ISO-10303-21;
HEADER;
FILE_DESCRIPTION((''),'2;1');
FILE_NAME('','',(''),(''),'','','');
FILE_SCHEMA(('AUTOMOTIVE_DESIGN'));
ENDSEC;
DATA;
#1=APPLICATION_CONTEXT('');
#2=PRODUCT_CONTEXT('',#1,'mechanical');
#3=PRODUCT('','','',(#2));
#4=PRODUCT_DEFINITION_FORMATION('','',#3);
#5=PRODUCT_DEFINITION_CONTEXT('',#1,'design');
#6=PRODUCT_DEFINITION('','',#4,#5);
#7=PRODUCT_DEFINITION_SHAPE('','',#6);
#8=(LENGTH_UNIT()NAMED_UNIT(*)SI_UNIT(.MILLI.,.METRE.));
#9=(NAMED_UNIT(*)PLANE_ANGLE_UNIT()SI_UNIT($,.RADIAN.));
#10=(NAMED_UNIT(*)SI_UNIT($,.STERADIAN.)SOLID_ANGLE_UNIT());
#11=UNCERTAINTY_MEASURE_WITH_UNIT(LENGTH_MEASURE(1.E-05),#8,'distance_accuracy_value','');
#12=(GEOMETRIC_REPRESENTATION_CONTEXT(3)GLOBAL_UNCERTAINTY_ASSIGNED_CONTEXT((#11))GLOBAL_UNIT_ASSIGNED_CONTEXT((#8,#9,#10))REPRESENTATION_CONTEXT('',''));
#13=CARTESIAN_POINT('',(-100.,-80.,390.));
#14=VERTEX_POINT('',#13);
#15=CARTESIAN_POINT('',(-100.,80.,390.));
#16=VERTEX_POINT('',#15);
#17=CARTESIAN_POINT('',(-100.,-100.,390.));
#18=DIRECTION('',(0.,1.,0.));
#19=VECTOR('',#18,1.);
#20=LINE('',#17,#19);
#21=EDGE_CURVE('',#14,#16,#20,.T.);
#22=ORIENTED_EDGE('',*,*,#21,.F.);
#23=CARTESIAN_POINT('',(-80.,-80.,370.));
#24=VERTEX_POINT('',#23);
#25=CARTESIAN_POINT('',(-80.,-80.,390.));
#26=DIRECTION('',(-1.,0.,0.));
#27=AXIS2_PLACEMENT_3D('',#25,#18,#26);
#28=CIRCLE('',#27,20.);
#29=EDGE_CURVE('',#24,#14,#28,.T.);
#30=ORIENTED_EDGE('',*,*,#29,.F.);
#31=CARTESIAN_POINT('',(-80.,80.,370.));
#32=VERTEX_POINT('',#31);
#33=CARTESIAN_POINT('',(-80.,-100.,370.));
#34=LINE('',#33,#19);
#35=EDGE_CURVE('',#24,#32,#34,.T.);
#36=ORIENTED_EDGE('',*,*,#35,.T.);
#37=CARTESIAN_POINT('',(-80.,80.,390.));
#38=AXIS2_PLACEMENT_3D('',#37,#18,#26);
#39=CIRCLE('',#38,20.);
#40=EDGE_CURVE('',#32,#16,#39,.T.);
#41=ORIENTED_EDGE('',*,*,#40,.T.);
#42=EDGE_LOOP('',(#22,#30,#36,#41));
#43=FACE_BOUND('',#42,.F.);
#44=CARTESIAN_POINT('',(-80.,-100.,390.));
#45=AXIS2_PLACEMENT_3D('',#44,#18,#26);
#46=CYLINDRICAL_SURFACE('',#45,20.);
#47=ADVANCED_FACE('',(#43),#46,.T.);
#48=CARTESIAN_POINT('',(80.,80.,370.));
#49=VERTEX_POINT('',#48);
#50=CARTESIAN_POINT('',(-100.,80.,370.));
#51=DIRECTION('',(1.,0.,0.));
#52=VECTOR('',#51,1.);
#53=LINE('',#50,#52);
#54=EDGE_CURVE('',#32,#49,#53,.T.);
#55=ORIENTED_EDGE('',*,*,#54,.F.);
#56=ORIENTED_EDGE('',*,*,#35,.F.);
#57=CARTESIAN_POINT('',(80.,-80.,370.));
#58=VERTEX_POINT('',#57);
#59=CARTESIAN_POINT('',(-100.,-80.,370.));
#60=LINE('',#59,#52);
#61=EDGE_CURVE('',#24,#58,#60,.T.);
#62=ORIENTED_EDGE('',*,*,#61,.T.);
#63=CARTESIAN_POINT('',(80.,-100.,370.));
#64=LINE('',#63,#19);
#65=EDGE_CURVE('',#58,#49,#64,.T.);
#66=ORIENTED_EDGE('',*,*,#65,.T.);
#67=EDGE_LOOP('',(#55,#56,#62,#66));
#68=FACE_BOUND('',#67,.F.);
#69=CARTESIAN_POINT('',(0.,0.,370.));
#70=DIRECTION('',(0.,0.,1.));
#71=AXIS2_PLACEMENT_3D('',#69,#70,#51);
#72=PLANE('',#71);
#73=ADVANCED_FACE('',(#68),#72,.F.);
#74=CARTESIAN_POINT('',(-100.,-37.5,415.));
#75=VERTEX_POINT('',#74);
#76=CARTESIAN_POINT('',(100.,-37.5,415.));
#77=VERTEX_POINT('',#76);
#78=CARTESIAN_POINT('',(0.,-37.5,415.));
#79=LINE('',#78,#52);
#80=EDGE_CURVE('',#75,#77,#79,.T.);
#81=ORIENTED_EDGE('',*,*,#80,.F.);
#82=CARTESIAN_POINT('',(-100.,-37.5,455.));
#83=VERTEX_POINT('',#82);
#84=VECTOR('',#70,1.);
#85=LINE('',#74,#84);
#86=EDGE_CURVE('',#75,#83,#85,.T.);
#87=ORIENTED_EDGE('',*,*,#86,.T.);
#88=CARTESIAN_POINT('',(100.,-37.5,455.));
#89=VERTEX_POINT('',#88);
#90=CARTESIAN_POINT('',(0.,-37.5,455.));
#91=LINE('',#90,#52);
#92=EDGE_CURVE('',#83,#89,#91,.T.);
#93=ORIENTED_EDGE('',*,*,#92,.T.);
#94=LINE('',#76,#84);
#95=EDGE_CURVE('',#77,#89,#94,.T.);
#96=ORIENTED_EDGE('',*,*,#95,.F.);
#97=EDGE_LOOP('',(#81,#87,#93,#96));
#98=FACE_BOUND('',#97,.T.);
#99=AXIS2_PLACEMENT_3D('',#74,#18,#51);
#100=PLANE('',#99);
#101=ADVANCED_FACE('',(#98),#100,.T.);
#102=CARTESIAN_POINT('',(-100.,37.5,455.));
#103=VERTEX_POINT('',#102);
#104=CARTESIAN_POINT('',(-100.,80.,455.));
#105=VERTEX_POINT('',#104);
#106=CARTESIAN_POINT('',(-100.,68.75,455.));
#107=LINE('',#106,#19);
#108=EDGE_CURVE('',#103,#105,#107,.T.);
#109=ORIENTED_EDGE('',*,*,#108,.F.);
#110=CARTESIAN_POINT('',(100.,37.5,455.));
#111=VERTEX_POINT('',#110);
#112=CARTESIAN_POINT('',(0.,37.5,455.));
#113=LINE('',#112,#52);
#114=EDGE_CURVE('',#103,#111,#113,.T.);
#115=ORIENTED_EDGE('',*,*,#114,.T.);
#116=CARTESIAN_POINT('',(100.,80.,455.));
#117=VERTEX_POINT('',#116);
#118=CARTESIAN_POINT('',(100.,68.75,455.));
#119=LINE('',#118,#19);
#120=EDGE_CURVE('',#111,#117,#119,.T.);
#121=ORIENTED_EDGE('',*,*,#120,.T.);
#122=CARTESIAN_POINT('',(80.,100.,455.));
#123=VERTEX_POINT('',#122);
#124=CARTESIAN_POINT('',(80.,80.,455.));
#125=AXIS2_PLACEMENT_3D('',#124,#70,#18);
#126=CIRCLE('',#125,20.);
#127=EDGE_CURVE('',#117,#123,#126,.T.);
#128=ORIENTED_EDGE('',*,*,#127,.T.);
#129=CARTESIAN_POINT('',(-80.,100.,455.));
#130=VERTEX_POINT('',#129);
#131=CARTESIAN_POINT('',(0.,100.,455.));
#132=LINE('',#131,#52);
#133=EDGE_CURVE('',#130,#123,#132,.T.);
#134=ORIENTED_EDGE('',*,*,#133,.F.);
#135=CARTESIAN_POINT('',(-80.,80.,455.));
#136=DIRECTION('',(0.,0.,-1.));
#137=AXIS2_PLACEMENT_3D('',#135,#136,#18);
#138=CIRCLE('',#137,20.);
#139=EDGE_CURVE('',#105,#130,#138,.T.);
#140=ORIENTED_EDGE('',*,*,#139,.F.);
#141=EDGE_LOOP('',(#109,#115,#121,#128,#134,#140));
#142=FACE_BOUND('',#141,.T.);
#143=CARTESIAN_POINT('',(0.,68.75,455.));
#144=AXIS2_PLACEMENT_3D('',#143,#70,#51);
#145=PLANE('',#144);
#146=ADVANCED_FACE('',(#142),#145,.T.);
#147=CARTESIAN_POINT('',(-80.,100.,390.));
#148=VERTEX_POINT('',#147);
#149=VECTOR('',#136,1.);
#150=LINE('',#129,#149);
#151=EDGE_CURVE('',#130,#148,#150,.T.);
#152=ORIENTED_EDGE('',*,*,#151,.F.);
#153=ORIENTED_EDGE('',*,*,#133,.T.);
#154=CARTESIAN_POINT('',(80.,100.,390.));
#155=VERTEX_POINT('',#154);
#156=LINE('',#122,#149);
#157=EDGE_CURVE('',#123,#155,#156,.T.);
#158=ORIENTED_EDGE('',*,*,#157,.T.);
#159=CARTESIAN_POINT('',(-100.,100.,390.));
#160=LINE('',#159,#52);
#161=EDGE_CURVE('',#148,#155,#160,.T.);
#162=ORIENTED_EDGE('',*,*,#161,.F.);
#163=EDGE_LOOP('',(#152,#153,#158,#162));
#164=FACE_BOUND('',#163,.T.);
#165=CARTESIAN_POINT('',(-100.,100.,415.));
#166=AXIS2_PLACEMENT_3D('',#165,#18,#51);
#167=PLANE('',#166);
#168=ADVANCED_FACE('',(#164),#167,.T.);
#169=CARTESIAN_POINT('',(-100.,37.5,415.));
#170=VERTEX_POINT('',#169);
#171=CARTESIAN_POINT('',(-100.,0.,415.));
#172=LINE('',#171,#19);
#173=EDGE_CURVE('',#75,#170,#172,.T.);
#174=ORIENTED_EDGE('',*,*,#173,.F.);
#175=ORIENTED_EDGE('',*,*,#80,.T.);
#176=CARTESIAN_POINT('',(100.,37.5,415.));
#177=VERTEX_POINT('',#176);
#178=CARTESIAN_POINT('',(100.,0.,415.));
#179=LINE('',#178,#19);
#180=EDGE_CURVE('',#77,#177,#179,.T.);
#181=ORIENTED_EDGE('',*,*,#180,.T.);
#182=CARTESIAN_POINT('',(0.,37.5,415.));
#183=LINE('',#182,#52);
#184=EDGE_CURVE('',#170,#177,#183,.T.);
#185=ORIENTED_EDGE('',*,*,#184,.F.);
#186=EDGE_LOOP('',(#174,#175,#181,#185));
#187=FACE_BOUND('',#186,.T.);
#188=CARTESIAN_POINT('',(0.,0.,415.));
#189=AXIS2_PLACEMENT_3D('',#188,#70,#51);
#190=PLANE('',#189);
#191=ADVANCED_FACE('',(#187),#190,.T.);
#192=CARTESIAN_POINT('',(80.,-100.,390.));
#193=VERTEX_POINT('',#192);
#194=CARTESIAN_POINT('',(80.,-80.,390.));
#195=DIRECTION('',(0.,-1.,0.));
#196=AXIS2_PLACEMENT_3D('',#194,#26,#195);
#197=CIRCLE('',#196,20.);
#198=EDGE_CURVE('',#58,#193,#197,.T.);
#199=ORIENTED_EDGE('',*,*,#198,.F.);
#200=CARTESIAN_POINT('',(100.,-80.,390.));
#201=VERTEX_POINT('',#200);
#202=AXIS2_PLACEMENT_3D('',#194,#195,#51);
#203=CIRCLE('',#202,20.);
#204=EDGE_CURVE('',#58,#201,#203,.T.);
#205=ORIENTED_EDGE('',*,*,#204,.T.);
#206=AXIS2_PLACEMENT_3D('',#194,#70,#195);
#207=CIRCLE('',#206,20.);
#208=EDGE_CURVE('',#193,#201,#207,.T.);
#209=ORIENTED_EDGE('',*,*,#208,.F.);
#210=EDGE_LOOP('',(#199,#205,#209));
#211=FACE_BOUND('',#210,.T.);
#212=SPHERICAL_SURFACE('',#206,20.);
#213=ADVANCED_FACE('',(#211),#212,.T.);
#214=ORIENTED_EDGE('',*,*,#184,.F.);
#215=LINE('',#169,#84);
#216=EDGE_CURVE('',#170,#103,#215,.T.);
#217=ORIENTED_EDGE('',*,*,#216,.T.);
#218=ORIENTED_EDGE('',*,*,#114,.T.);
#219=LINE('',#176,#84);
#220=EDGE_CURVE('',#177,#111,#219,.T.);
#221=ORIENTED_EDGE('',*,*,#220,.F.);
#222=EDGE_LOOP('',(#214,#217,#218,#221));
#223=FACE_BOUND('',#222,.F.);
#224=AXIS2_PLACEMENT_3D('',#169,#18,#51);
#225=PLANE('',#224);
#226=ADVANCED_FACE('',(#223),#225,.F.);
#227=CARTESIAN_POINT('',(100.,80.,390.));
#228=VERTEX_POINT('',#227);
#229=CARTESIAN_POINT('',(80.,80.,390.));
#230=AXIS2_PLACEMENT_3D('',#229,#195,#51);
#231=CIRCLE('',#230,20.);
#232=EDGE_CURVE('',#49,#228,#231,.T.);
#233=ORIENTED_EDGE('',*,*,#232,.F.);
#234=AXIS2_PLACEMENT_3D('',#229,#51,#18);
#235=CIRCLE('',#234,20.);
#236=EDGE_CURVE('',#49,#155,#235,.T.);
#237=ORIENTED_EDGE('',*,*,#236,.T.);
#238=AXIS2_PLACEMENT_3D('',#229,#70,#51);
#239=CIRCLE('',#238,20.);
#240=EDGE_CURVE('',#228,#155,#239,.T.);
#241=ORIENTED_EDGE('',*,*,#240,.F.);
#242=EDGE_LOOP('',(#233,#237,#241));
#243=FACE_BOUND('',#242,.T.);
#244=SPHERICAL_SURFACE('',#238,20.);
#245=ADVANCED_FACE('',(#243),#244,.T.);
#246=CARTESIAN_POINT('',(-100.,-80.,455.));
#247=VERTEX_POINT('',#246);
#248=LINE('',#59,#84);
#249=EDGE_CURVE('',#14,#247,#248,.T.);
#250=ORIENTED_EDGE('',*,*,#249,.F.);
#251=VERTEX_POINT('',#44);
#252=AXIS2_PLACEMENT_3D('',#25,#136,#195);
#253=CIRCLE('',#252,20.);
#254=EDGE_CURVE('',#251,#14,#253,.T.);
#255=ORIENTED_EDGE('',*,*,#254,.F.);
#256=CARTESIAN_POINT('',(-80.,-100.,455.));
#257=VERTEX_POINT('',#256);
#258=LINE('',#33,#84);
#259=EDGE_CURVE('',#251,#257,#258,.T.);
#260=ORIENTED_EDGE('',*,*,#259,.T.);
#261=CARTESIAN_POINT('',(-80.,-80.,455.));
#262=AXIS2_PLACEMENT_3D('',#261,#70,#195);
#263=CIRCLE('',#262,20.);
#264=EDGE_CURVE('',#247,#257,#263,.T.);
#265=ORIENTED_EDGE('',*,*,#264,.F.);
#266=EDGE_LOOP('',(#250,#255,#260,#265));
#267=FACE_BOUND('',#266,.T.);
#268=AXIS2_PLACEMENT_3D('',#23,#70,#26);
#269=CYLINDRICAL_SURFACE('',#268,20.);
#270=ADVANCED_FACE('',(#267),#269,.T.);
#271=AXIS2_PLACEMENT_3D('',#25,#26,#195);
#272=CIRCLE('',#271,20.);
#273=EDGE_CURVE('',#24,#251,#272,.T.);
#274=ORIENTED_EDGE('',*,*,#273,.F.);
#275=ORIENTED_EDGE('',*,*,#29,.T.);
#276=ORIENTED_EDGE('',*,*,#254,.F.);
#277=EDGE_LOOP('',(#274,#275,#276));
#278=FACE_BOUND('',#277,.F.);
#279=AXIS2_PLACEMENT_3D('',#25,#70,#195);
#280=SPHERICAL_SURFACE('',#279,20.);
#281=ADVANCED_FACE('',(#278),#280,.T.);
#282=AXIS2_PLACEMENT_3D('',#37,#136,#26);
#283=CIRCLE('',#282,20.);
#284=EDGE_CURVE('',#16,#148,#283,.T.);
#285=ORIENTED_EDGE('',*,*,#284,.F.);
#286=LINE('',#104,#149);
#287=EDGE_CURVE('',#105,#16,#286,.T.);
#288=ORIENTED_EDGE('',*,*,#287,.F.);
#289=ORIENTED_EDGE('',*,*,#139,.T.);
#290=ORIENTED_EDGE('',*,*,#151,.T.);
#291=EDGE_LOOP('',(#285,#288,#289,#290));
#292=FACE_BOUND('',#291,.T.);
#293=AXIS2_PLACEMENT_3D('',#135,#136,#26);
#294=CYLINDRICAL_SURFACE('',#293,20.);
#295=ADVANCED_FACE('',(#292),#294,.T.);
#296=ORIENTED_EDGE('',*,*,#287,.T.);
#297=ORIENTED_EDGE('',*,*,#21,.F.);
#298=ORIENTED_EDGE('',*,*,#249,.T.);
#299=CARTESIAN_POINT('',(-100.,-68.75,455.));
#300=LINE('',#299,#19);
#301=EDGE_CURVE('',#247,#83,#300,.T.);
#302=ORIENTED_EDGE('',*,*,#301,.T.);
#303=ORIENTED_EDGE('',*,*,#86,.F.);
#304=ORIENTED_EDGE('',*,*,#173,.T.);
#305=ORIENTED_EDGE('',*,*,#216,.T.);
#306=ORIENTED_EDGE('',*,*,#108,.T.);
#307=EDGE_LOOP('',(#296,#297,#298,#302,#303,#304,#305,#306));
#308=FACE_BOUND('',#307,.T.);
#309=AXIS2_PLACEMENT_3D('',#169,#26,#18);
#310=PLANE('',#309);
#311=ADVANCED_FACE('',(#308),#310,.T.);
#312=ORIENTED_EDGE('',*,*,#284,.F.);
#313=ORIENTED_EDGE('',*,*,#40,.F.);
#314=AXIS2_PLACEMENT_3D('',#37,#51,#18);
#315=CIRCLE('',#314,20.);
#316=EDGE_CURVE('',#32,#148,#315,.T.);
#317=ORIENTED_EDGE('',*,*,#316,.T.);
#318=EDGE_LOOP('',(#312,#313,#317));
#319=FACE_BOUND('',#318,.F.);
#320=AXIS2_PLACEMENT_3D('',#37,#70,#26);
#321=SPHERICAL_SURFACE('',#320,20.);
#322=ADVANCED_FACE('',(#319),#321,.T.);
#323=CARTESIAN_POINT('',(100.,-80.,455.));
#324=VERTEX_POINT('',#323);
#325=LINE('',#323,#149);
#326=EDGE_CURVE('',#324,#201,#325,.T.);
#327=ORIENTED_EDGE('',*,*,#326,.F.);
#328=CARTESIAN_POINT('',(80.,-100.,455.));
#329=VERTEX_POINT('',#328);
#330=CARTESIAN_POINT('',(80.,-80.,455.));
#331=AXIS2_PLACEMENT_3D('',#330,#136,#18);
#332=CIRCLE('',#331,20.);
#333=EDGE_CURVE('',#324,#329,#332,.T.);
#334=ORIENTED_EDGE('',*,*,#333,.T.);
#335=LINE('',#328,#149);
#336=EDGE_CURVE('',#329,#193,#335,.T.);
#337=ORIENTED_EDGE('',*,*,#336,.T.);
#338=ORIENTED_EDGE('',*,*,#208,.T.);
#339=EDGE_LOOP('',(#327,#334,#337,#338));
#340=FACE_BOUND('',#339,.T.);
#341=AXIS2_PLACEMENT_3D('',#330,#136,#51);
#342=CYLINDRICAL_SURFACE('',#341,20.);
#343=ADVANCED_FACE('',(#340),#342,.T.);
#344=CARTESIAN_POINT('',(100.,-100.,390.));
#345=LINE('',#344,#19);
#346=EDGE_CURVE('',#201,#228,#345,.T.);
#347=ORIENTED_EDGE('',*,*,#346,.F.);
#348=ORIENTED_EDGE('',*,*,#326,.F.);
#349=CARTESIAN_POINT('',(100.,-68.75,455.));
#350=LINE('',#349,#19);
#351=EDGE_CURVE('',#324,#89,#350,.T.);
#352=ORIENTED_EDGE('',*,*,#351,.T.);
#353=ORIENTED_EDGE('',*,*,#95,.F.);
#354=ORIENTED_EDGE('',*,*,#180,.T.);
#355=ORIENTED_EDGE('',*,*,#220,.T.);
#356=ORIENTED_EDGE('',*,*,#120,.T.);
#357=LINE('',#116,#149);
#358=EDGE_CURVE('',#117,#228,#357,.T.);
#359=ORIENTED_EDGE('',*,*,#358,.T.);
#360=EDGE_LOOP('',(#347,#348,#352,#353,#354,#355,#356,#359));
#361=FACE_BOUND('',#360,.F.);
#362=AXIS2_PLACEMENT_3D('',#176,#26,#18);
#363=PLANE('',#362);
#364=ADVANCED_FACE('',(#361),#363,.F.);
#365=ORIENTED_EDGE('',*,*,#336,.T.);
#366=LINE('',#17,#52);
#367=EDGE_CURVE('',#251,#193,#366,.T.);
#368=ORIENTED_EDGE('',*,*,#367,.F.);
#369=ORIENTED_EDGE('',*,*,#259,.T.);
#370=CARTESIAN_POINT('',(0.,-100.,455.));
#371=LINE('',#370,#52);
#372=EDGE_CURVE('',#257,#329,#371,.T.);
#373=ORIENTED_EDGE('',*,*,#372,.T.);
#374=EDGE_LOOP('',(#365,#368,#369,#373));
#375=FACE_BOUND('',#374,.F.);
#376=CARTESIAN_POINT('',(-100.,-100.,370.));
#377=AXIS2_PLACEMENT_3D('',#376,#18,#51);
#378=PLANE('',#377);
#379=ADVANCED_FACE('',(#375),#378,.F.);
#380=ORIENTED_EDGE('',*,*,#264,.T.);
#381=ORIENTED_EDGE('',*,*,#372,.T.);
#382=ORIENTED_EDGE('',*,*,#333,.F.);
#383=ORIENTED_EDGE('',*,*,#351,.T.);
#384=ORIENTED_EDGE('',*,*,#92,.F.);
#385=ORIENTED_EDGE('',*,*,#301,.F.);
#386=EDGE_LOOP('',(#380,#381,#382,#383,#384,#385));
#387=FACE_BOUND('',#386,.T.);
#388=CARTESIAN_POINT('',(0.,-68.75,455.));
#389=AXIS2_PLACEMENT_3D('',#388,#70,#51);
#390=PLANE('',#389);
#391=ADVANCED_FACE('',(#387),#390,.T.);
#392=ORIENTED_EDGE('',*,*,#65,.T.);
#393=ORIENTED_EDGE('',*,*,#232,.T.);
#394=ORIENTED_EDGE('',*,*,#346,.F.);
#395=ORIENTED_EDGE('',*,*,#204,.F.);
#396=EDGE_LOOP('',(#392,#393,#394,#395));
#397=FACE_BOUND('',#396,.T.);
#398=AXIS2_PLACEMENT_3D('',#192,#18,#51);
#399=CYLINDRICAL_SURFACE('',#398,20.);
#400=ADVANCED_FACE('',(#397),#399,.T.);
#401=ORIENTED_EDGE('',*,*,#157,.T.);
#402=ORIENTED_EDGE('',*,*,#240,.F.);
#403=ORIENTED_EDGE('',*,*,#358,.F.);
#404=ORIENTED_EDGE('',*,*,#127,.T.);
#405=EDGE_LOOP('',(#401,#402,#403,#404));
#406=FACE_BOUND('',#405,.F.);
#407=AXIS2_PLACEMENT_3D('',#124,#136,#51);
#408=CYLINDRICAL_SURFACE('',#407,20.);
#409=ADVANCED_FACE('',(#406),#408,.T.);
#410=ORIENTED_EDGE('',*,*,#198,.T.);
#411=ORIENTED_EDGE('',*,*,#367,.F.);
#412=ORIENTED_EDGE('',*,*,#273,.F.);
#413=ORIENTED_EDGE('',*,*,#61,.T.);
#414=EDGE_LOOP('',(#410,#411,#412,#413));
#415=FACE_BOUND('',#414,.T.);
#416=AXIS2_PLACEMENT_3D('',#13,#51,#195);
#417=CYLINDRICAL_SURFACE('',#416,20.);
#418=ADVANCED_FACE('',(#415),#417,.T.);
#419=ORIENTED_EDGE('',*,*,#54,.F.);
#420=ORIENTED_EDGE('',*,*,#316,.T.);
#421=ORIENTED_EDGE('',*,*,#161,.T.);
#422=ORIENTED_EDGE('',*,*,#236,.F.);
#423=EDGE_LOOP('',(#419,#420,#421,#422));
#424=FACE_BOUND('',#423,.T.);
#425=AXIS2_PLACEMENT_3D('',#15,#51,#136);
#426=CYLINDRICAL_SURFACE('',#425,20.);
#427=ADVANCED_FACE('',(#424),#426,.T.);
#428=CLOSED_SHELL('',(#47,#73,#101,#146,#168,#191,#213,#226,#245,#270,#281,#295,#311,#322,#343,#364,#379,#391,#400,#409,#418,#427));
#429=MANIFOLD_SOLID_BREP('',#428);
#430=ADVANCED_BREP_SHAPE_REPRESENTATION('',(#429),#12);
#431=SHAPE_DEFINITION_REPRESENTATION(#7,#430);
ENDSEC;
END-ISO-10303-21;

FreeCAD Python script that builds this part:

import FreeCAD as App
import Part
import Sketcher


def edges_at(feature, points):
    """Names of the edges that pass closest to the given points."""
    edges = feature.Shape.Edges
    near = lambda p: min(range(len(edges)), key=lambda i: edges[i].distToShape(Part.Vertex(*p))[0])
    return sorted({f"Edge{near(p) + 1}" for p in points})


def add_polygon(sketch, points):
    """Adds a closed chain of lines whose ends are joined by coincident constraints."""
    first, n = sketch.GeometryCount, len(points)
    for a, b in zip(points, points[1:] + points[:1]):
        sketch.addGeometry(Part.LineSegment(App.Vector(*a, 0), App.Vector(*b, 0)), False)
    for i in range(n):
        sketch.addConstraint(Sketcher.Constraint("Coincident", first + i, 2, first + (i + 1) % n, 1))

doc = App.newDocument("Part")
params = doc.addObject("Spreadsheet::Sheet", "Params")
for row, (alias, value) in enumerate([
    ("sketch1_width", "200 mm"),
    ("pad1_length", "45 mm"),
    ("sketch2_width", "200 mm"),
    ("sketch2_height", "62.5 mm"),
    ("pad2_length", "40 mm"),
    ("fillet_radius", "20 mm"),
], start=1):
    params.set(f"A{row}", alias)
    params.set(f"B{row}", "=" + value)
    params.setAlias(f"B{row}", alias)

body = doc.addObject("PartDesign::Body", "Body")

# Sketch on XY plane
sketch1 = body.newObject("Sketcher::SketchObject", "Sketch")
sketch1.AttachmentSupport = (doc.getObject("XY_Plane"), [""])
sketch1.MapMode = "FlatFace"
sketch1.AttachmentOffset = App.Placement(App.Vector(0, 0, 370), App.Rotation())
add_polygon(sketch1, [(-100, 100), (-100, -100), (100, -100), (100, 100)])  # lines 0-3
sketch1.addConstraint(Sketcher.Constraint("Vertical", 0))
sketch1.addConstraint(Sketcher.Constraint("Horizontal", 1))
sketch1.addConstraint(Sketcher.Constraint("Vertical", 2))
sketch1.addConstraint(Sketcher.Constraint("Horizontal", 3))
sketch1.addConstraint(Sketcher.Constraint("Symmetric", 0, 2, 2, 2, -1, 1))
sketch1.addConstraint(Sketcher.Constraint("Equal", 3, 0))
sketch1.addConstraint(Sketcher.Constraint("DistanceX", 1, 1, 1, 2, 200.0))
sketch1.setExpression("Constraints[10]", "Params.sketch1_width")
pad1 = body.newObject("PartDesign::Pad", "Pad")
pad1.Profile = sketch1
pad1.setExpression("Length", "Params.pad1_length")

# Sketch on XY plane
sketch2 = body.newObject("Sketcher::SketchObject", "Sketch001")
sketch2.AttachmentSupport = (doc.getObject("XY_Plane"), [""])
sketch2.MapMode = "FlatFace"
sketch2.AttachmentOffset = App.Placement(App.Vector(0, 0, 415), App.Rotation())
add_polygon(sketch2, [(-100, 100), (-100, 38), (100, 38), (100, 100)])  # lines 0-3
add_polygon(sketch2, [(-100, -38), (-100, -100), (100, -100), (100, -38)])  # lines 4-7
sketch2.addConstraint(Sketcher.Constraint("Vertical", 0))
sketch2.addConstraint(Sketcher.Constraint("Horizontal", 1))
sketch2.addConstraint(Sketcher.Constraint("Vertical", 2))
sketch2.addConstraint(Sketcher.Constraint("Horizontal", 3))
sketch2.addConstraint(Sketcher.Constraint("Vertical", 4))
sketch2.addConstraint(Sketcher.Constraint("Horizontal", 5))
sketch2.addConstraint(Sketcher.Constraint("Vertical", 6))
sketch2.addConstraint(Sketcher.Constraint("Horizontal", 7))
sketch2.addConstraint(Sketcher.Constraint("Symmetric", 2, 2, 4, 2, -1, 1))
sketch2.addConstraint(Sketcher.Constraint("Symmetric", 0, 2, 6, 2, -1, 1))
sketch2.addConstraint(Sketcher.Constraint("Vertical", 3, 2, 4, 2))
sketch2.addConstraint(Sketcher.Constraint("DistanceX", 1, 1, 1, 2, 200.0))
sketch2.addConstraint(Sketcher.Constraint("DistanceY", 0, 2, 0, 1, 62.5))
sketch2.addConstraint(Sketcher.Constraint("DistanceY", -1, 1, 2, 2, 100.0))
sketch2.setExpression("Constraints[19]", "Params.sketch2_width")
sketch2.setExpression("Constraints[20]", "Params.sketch2_height")
pad2 = body.newObject("PartDesign::Pad", "Pad001")
pad2.Profile = sketch2
pad2.setExpression("Length", "Params.pad2_length")
doc.recompute()

fillet = body.newObject("PartDesign::Fillet", "Fillet")
fillet.Base = (pad2, edges_at(pad2, [
    (-100, -100, 412.5),
    (100, -100, 412.5),
    (100, 100, 412.5),
    (-100, 100, 412.5),
    (0, -100, 370),
    (100, 0, 370),
    (-100, 0, 370),
    (0, 100, 370),
]))
fillet.setExpression("Radius", "Params.fillet_radius")

doc.recompute()
